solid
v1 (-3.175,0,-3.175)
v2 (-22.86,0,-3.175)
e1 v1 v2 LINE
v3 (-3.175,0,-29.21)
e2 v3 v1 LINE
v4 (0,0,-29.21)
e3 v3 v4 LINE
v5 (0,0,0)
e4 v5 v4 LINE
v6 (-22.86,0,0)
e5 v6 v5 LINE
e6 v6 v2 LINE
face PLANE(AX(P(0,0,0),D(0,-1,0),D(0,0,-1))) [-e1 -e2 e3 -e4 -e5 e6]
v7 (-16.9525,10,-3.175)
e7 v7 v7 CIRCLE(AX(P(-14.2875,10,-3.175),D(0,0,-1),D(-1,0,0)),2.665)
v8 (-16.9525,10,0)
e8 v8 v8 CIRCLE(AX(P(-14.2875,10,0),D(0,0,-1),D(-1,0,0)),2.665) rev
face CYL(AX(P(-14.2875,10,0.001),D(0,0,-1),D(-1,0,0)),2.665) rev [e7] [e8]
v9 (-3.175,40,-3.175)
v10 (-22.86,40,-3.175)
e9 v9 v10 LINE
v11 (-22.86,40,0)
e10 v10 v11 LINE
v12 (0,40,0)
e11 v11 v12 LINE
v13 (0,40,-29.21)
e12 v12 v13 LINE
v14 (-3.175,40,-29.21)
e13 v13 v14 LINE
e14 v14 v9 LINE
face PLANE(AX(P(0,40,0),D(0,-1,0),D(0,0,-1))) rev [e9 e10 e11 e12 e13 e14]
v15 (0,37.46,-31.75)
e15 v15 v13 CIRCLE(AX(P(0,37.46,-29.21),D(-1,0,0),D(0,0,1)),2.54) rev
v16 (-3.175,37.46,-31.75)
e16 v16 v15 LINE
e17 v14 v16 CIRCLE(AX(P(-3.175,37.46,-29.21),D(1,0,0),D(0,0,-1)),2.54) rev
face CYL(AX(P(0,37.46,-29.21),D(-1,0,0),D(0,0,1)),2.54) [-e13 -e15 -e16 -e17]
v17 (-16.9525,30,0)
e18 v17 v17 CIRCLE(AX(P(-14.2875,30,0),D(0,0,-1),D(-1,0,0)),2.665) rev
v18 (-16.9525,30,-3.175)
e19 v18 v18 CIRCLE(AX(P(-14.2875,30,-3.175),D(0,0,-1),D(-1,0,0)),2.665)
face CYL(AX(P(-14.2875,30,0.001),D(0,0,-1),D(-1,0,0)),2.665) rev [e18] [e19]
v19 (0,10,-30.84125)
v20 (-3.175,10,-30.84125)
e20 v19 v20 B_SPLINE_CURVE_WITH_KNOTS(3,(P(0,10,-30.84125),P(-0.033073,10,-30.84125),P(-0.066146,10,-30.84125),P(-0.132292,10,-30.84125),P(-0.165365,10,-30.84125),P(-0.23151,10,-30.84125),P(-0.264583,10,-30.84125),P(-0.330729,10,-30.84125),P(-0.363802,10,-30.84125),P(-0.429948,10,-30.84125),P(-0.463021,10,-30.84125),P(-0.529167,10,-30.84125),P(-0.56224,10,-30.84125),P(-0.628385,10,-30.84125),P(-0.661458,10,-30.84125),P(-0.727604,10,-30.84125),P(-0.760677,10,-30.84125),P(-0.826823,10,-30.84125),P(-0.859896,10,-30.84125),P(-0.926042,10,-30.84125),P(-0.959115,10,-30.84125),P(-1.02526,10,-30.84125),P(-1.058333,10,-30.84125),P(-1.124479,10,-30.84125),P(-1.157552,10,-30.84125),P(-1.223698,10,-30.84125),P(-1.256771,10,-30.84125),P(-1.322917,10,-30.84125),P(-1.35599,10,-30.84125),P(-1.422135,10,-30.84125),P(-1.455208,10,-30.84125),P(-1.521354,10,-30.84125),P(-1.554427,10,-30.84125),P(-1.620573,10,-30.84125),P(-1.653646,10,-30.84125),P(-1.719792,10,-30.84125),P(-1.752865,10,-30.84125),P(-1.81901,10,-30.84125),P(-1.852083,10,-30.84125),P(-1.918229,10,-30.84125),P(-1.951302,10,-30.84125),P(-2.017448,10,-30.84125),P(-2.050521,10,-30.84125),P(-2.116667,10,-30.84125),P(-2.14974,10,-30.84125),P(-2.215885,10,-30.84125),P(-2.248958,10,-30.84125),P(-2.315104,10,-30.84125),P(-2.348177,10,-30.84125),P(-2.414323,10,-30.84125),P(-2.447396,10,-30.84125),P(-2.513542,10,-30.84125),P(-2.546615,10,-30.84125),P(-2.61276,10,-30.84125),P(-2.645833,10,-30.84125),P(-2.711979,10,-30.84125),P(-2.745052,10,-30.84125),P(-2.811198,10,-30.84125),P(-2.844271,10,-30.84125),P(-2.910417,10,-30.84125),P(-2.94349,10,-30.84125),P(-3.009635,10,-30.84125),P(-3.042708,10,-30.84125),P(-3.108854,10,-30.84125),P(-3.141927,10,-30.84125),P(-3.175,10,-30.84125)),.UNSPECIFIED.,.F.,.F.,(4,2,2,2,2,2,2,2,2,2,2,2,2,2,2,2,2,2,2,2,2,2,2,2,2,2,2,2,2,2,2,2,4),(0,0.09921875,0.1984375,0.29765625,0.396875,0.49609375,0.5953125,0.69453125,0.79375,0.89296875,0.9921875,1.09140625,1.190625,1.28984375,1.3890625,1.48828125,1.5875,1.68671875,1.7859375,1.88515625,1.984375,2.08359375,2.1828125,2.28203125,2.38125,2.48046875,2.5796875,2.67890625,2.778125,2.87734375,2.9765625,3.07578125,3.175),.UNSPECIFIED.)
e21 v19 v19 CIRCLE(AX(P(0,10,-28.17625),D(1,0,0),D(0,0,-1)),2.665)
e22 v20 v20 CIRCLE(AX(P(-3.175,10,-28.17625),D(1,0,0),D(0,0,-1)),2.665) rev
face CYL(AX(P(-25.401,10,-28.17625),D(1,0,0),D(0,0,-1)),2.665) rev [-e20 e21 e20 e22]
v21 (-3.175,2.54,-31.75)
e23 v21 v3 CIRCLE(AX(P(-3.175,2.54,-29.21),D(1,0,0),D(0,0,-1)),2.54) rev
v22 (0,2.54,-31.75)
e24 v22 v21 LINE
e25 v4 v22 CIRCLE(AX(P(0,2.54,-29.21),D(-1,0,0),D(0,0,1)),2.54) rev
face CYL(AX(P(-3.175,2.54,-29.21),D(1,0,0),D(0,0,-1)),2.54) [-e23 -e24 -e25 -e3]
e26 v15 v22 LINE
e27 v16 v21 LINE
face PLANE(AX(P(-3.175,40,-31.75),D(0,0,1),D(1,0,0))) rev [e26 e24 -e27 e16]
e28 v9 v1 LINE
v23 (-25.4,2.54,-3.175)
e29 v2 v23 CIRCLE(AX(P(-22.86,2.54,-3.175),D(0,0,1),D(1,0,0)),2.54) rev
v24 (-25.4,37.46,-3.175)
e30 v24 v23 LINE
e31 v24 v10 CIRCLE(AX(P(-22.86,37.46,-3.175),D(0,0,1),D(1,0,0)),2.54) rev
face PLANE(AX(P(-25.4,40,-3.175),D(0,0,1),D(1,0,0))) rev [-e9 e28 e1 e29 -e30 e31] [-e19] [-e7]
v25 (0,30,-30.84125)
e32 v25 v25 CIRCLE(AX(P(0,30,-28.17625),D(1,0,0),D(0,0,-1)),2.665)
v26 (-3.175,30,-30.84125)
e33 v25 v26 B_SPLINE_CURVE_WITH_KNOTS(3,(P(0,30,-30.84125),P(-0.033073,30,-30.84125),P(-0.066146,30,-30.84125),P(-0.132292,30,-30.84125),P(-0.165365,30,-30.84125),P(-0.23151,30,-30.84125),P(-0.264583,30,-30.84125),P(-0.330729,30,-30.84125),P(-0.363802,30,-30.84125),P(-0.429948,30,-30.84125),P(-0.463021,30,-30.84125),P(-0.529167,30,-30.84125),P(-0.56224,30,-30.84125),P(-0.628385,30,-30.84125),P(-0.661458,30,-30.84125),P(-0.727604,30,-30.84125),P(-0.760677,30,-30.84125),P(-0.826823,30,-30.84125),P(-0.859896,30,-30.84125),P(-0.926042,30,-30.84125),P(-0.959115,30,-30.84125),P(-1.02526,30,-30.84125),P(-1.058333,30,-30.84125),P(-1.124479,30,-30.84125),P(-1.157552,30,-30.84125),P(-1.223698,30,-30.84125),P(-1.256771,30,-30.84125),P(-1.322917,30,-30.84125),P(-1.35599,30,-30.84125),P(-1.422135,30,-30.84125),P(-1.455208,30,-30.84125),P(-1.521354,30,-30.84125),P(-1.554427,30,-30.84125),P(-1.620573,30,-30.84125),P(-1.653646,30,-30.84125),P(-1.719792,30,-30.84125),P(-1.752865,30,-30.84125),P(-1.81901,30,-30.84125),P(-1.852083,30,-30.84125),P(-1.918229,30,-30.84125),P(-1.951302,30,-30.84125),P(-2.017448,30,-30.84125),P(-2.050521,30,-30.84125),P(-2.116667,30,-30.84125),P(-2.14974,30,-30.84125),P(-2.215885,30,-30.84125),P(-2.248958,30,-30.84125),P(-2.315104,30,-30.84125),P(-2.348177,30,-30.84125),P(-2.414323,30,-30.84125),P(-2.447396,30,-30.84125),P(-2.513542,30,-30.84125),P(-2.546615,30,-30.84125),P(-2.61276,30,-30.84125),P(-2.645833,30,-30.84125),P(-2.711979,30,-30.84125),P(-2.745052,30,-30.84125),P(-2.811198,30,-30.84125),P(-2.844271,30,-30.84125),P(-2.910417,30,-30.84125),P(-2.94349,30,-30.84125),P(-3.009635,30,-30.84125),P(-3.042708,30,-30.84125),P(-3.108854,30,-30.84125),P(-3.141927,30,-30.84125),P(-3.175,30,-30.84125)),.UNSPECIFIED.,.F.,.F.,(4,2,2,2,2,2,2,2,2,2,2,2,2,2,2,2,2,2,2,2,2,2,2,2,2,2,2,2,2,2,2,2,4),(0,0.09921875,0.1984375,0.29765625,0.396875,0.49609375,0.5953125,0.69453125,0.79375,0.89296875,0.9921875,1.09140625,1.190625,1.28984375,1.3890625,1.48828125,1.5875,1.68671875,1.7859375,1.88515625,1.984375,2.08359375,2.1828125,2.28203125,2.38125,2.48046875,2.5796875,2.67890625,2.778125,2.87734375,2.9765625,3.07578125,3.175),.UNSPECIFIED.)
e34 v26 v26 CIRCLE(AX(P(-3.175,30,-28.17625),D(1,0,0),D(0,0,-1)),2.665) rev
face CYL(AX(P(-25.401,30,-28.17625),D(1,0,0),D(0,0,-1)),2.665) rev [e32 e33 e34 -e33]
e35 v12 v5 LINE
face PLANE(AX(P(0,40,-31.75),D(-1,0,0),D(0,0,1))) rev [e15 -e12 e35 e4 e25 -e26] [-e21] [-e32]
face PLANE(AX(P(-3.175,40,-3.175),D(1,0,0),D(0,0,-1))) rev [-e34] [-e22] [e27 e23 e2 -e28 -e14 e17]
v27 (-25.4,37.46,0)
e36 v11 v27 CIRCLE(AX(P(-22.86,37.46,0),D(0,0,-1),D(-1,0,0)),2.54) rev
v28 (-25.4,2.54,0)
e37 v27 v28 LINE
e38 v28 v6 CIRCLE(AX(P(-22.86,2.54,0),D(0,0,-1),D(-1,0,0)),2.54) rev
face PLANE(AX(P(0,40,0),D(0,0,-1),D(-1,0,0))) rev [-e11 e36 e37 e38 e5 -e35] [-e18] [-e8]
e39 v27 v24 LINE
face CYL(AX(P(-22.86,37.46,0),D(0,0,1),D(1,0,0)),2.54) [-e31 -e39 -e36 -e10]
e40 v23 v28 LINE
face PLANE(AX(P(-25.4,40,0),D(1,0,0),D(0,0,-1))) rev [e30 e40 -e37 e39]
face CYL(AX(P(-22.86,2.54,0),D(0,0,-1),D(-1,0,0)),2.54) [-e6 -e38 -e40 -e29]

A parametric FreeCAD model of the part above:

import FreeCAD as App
import Part
import Sketcher
Q = App.Units.Quantity


def edges_at(feature, points):
    """Names of the edges that pass closest to the given points."""
    edges = feature.Shape.Edges
    near = lambda p: min(range(len(edges)), key=lambda i: edges[i].distToShape(Part.Vertex(*p))[0])
    return sorted({f"Edge{near(p) + 1}" for p in points})


def add_polygon(sketch, points):
    """Adds a closed chain of lines whose ends are joined by coincident constraints."""
    first, n = sketch.GeometryCount, len(points)
    for a, b in zip(points, points[1:] + points[:1]):
        sketch.addGeometry(Part.LineSegment(App.Vector(*a, 0), App.Vector(*b, 0)), False)
    for i in range(n):
        sketch.addConstraint(Sketcher.Constraint("Coincident", first + i, 2, first + (i + 1) % n, 1))

doc = App.newDocument("Part")
body = doc.addObject("PartDesign::Body", "Body")

# Sketch on XZ plane
sketch1 = body.newObject("Sketcher::SketchObject", "Sketch")
sketch1.AttachmentSupport = (doc.getObject("XZ_Plane"), [""])
sketch1.MapMode = "FlatFace"
add_polygon(sketch1, [(-25.4, 0), (0, 0), (0, -31.75), (-3.175, -31.75), (-3.175, -3.175), (-25.4, -3.175)])  # lines 0-5
sketch1.addConstraint(Sketcher.Constraint("Horizontal", 0))
sketch1.addConstraint(Sketcher.Constraint("Vertical", 1))
sketch1.addConstraint(Sketcher.Constraint("Horizontal", 2))
sketch1.addConstraint(Sketcher.Constraint("Vertical", 3))
sketch1.addConstraint(Sketcher.Constraint("Horizontal", 4))
sketch1.addConstraint(Sketcher.Constraint("Vertical", 5))
sketch1.addConstraint(Sketcher.Constraint("Coincident", 0, 2, -1, 1))
sketch1.addConstraint(Sketcher.Constraint("Equal", 2, 5))
sketch1.addConstraint(Sketcher.Constraint("DistanceX", 0, 1, 0, 2, Q("1 in")))
sketch1.addConstraint(Sketcher.Constraint("DistanceY", 1, 2, 1, 1, Q("1.25 in")))
sketch1.addConstraint(Sketcher.Constraint("DistanceX", 2, 2, 2, 1, Q("0.125 in")))
pad1 = body.newObject("PartDesign::Pad", "Pad")
pad1.Profile = sketch1
pad1.Length = 40
pad1.Reversed = True

# Sketch on XY plane
sketch2 = body.newObject("Sketcher::SketchObject", "Sketch001")
sketch2.AttachmentSupport = (doc.getObject("XY_Plane"), [""])
sketch2.MapMode = "FlatFace"
sketch2.AttachmentOffset = App.Placement(App.Vector(0, 0, -0.125 * 25.4), App.Rotation())
sketch2.addGeometry(Part.Circle(App.Vector(-14.2875, 30, 0), App.Vector(0, 0, 1), 2.665), False)
sketch2.addConstraint(Sketcher.Constraint("Diameter", 0, 5.33))
sketch2.addConstraint(Sketcher.Constraint("DistanceX", 0, 3, -1, 1, Q("0.5625 in")))
sketch2.addConstraint(Sketcher.Constraint("DistanceY", -1, 1, 0, 3, 30.0))
pocket1 = body.newObject("PartDesign::Pocket", "Pocket")
pocket1.Profile = sketch2
pocket1.Type = "UpToFirst"
pocket1.Reversed = True

# Sketch on XY plane
sketch3 = body.newObject("Sketcher::SketchObject", "Sketch002")
sketch3.AttachmentSupport = (doc.getObject("XY_Plane"), [""])
sketch3.MapMode = "FlatFace"
sketch3.AttachmentOffset = App.Placement(App.Vector(0, 0, -0.125 * 25.4), App.Rotation())
sketch3.addGeometry(Part.Circle(App.Vector(-14.2875, 10, 0), App.Vector(0, 0, 1), 2.665), False)
sketch3.addConstraint(Sketcher.Constraint("Diameter", 0, 5.33))
sketch3.addConstraint(Sketcher.Constraint("DistanceX", 0, 3, -1, 1, Q("0.5625 in")))
sketch3.addConstraint(Sketcher.Constraint("DistanceY", -1, 1, 0, 3, 10.0))
pocket2 = body.newObject("PartDesign::Pocket", "Pocket001")
pocket2.Profile = sketch3
pocket2.Type = "UpToFirst"
pocket2.Reversed = True

# Sketch on YZ plane
sketch4 = body.newObject("Sketcher::SketchObject", "Sketch003")
sketch4.AttachmentSupport = (doc.getObject("YZ_Plane"), [""])
sketch4.MapMode = "FlatFace"
sketch4.addGeometry(Part.Circle(App.Vector(10, -28.17625, 0), App.Vector(0, 0, 1), 2.665), False)
sketch4.addConstraint(Sketcher.Constraint("Diameter", 0, 5.33))
sketch4.addConstraint(Sketcher.Constraint("DistanceX", -1, 1, 0, 3, 10.0))
sketch4.addConstraint(Sketcher.Constraint("DistanceY", 0, 3, -1, 1, 28.17625))
pocket3 = body.newObject("PartDesign::Pocket", "Pocket002")
pocket3.Profile = sketch4
pocket3.Type = "UpToFirst"

# Sketch on YZ plane
sketch5 = body.newObject("Sketcher::SketchObject", "Sketch004")
sketch5.AttachmentSupport = (doc.getObject("YZ_Plane"), [""])
sketch5.MapMode = "FlatFace"
sketch5.addGeometry(Part.Circle(App.Vector(30, -28.17625, 0), App.Vector(0, 0, 1), 2.665), False)
sketch5.addConstraint(Sketcher.Constraint("Diameter", 0, 5.33))
sketch5.addConstraint(Sketcher.Constraint("DistanceX", -1, 1, 0, 3, 30.0))
sketch5.addConstraint(Sketcher.Constraint("DistanceY", 0, 3, -1, 1, 28.17625))
pocket4 = body.newObject("PartDesign::Pocket", "Pocket003")
pocket4.Profile = sketch5
pocket4.Type = "UpToFirst"
doc.recompute()

fillet = body.newObject("PartDesign::Fillet", "Fillet")
fillet.Base = (pocket4, edges_at(pocket4, [
    (-25.4, 40, -1.587),
    (-25.4, 0, -1.587),
    (-1.587, 40, -31.75),
    (-1.587, 0, -31.75),
]))
fillet.Radius = Q("0.1 in")

doc.recompute()
